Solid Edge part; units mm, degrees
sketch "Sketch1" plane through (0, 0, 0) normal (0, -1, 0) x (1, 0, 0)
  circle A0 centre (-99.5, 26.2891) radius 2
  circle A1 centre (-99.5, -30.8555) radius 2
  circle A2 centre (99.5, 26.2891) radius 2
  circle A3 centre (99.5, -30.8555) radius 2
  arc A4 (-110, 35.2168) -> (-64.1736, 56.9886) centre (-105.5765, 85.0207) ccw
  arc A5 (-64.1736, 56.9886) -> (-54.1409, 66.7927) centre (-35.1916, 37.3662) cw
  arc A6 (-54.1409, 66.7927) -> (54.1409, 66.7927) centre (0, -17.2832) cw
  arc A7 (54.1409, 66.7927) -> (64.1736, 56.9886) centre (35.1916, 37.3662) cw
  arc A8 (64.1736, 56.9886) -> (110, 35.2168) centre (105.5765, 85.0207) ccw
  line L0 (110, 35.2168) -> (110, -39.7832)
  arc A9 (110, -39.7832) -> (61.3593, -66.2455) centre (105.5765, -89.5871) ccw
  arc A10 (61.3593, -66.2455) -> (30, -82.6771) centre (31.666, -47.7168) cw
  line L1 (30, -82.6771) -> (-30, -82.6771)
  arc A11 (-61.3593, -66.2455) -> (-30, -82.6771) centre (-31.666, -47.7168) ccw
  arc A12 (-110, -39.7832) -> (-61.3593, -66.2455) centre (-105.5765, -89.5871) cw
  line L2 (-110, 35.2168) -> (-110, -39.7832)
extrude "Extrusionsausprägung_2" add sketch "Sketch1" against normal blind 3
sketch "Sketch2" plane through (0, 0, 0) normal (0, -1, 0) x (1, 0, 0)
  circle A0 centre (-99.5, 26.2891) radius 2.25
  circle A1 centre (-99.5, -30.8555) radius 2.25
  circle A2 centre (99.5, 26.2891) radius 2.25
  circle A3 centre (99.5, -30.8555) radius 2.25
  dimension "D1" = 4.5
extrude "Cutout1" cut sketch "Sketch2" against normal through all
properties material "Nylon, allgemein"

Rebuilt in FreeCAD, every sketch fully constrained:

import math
import FreeCAD as App
import Part
import Sketcher
from FreeCAD import Vector
Q = App.Units.Quantity

doc = App.newDocument("Part")
params = doc.addObject("Spreadsheet::Sheet", "Params")
for row, (alias, value) in enumerate([
    ("sketch1_diameter", "4 mm"),
    ("sketch1_radius", "50 mm"),
    ("sketch1_radius2", "35 mm"),
    ("sketch1_radius3", "100 mm"),
    ("sketch1_width", "60 mm"),
    ("pad1_length", "3 mm"),
    ("sketch2_diameter", "4.5 mm"),
], start=1):
    params.set(f"A{row}", alias)
    params.set(f"B{row}", "=" + value)
    params.setAlias(f"B{row}", alias)

body = doc.addObject("PartDesign::Body", "Body")

# Sketch on XZ plane
sketch1 = body.newObject("Sketcher::SketchObject", "Sketch")
sketch1.AttachmentSupport = (doc.getObject("XZ_Plane"), [""])
sketch1.MapMode = "FlatFace"
sketch1.addGeometry(Part.ArcOfCircle(Part.Circle(Vector(-105.6, 85, 0), Vector(0, 0, 1), 50), math.radians(-95), math.radians(-34)), False)
sketch1.addGeometry(Part.LineSegment(Vector(-110, 35.2, 0), Vector(-110, -39.8, 0)), False)
sketch1.addGeometry(Part.ArcOfCircle(Part.Circle(Vector(-105.6, -89.6, 0), Vector(0, 0, 1), 50), math.radians(28), math.radians(95)), False)
sketch1.addGeometry(Part.ArcOfCircle(Part.Circle(Vector(-31.7, -47.7, 0), Vector(0, 0, 1), 35), math.radians(-148), math.radians(-87)), False)
sketch1.addGeometry(Part.LineSegment(Vector(-30, -82.7, 0), Vector(30, -82.7, 0)), False)
sketch1.addGeometry(Part.ArcOfCircle(Part.Circle(Vector(31.7, -47.7, 0), Vector(0, 0, 1), 35), math.radians(-93), math.radians(-32)), False)
sketch1.addGeometry(Part.ArcOfCircle(Part.Circle(Vector(105.6, -89.6, 0), Vector(0, 0, 1), 50), math.radians(85), math.radians(152)), False)
sketch1.addGeometry(Part.LineSegment(Vector(110, -39.8, 0), Vector(110, 35.2, 0)), False)
sketch1.addGeometry(Part.ArcOfCircle(Part.Circle(Vector(105.6, 85, 0), Vector(0, 0, 1), 50), math.radians(-146), math.radians(-85)), False)
sketch1.addGeometry(Part.ArcOfCircle(Part.Circle(Vector(35.2, 37.4, 0), Vector(0, 0, 1), 35), math.radians(34), math.radians(57)), False)
sketch1.addGeometry(Part.ArcOfCircle(Part.Circle(Vector(0, -17.3, 0), Vector(0, 0, 1), 100), math.radians(57), math.radians(123)), False)
sketch1.addGeometry(Part.ArcOfCircle(Part.Circle(Vector(-35.2, 37.4, 0), Vector(0, 0, 1), 35), math.radians(123), math.radians(146)), False)
sketch1.addGeometry(Part.Circle(Vector(-99.5, -30.9, 0), Vector(0, 0, 1), 2), False)
sketch1.addGeometry(Part.Circle(Vector(99.5, -30.9, 0), Vector(0, 0, 1), 2), False)
sketch1.addGeometry(Part.Circle(Vector(-99.5, 26.3, 0), Vector(0, 0, 1), 2), False)
sketch1.addGeometry(Part.Circle(Vector(99.5, 26.3, 0), Vector(0, 0, 1), 2), False)
sketch1.addConstraint(Sketcher.Constraint("Coincident", 0, 1, 1, 1))
sketch1.addConstraint(Sketcher.Constraint("Coincident", 1, 2, 2, 2))
sketch1.addConstraint(Sketcher.Constraint("Coincident", 2, 1, 3, 1))
sketch1.addConstraint(Sketcher.Constraint("Coincident", 3, 2, 4, 1))
sketch1.addConstraint(Sketcher.Constraint("Coincident", 4, 2, 5, 1))
sketch1.addConstraint(Sketcher.Constraint("Coincident", 5, 2, 6, 2))
sketch1.addConstraint(Sketcher.Constraint("Coincident", 6, 1, 7, 1))
sketch1.addConstraint(Sketcher.Constraint("Coincident", 7, 2, 8, 2))
sketch1.addConstraint(Sketcher.Constraint("Tangent", 8, 1, 9, 1))
sketch1.addConstraint(Sketcher.Constraint("Tangent", 9, 2, 10, 1))
sketch1.addConstraint(Sketcher.Constraint("Tangent", 10, 2, 11, 1))
sketch1.addConstraint(Sketcher.Constraint("Tangent", 11, 2, 0, 2))
sketch1.addConstraint(Sketcher.Constraint("Vertical", 1))
sketch1.addConstraint(Sketcher.Constraint("Horizontal", 4))
sketch1.addConstraint(Sketcher.Constraint("Vertical", 7))
sketch1.addConstraint(Sketcher.Constraint("Equal", 0, 2))
sketch1.addConstraint(Sketcher.Constraint("Equal", 3, 5))
sketch1.addConstraint(Sketcher.Constraint("Equal", 2, 6))
sketch1.addConstraint(Sketcher.Constraint("Equal", 6, 8))
sketch1.addConstraint(Sketcher.Constraint("Equal", 5, 9))
sketch1.addConstraint(Sketcher.Constraint("Equal", 9, 11))
sketch1.addConstraint(Sketcher.Constraint("Equal", 12, 13))
sketch1.addConstraint(Sketcher.Constraint("Equal", 13, 14))
sketch1.addConstraint(Sketcher.Constraint("Equal", 14, 15))
sketch1.addConstraint(Sketcher.Constraint("Symmetric", 3, 3, 5, 3, -2))
sketch1.addConstraint(Sketcher.Constraint("Symmetric", 2, 3, 6, 3, -2))
sketch1.addConstraint(Sketcher.Constraint("Symmetric", 0, 3, 8, 3, -2))
sketch1.addConstraint(Sketcher.Constraint("Symmetric", 12, 3, 13, 3, -2))
sketch1.addConstraint(Sketcher.Constraint("Symmetric", 14, 3, 15, 3, -2))
sketch1.addConstraint(Sketcher.Constraint("PointOnObject", 10, 3, -2))
sketch1.addConstraint(Sketcher.Constraint("Horizontal", 1, 2, 6, 1))
sketch1.addConstraint(Sketcher.Constraint("Vertical", 0, 3, 2, 3))
sketch1.addConstraint(Sketcher.Constraint("Vertical", 12, 3, 14, 3))
sketch1.addConstraint(Sketcher.Constraint("Diameter", 12, Q("4 mm")))
sketch1.addConstraint(Sketcher.Constraint("Radius", 0, Q("50 mm")))
sketch1.addConstraint(Sketcher.Constraint("Radius", 3, Q("35 mm")))
sketch1.addConstraint(Sketcher.Constraint("Radius", 10, Q("100 mm")))
sketch1.addConstraint(Sketcher.Constraint("DistanceX", 4, 1, 4, 2, Q("60 mm")))
sketch1.addConstraint(Sketcher.Constraint("DistanceY", 1, 2, 1, 1, Q("75 mm")))
sketch1.addConstraint(Sketcher.Constraint("DistanceX", 0, 1, -1, 1, Q("110 mm")))
sketch1.addConstraint(Sketcher.Constraint("DistanceX", 12, 3, -1, 1, Q("99.5 mm")))
sketch1.addConstraint(Sketcher.Constraint("DistanceY", 2, 1, 12, 3, Q("35.39 mm")))
sketch1.addConstraint(Sketcher.Constraint("DistanceY", 2, 3, 3, 2, Q("6.91 mm")))
sketch1.addConstraint(Sketcher.Constraint("DistanceY", 2, 3, -1, 1, Q("89.587 mm")))
sketch1.addConstraint(Sketcher.Constraint("DistanceX", 3, 3, -1, 1, Q("31.666 mm")))
sketch1.addConstraint(Sketcher.Constraint("DistanceY", -1, 1, 14, 3, Q("26.289 mm")))
sketch1.addConstraint(Sketcher.Constraint("DistanceX", -1, 1, 9, 2, Q("54.141 mm")))
sketch1.addConstraint(Sketcher.Constraint("DistanceX", 2, 3, 6, 3, Q("211.153 mm")))
sketch1.setExpression("Constraints[33]", "Params.sketch1_diameter")
sketch1.setExpression("Constraints[34]", "Params.sketch1_radius")
sketch1.setExpression("Constraints[35]", "Params.sketch1_radius2")
sketch1.setExpression("Constraints[36]", "Params.sketch1_radius3")
sketch1.setExpression("Constraints[37]", "Params.sketch1_width")
pad1 = body.newObject("PartDesign::Pad", "Pad")
pad1.Profile = sketch1
pad1.setExpression("Length", "Params.pad1_length")
pad1.Reversed = True

# Sketch on XZ plane
sketch2 = body.newObject("Sketcher::SketchObject", "Sketch001")
sketch2.AttachmentSupport = (doc.getObject("XZ_Plane"), [""])
sketch2.MapMode = "FlatFace"
sketch2.addGeometry(Part.Circle(Vector(-99.5, 26.3, 0), Vector(0, 0, 1), 2.2), False)
sketch2.addGeometry(Part.Circle(Vector(-99.5, -30.9, 0), Vector(0, 0, 1), 2.2), False)
sketch2.addGeometry(Part.Circle(Vector(99.5, 26.3, 0), Vector(0, 0, 1), 2.2), False)
sketch2.addGeometry(Part.Circle(Vector(99.5, -30.9, 0), Vector(0, 0, 1), 2.2), False)
sketch2.addConstraint(Sketcher.Constraint("Equal", 0, 1))
sketch2.addConstraint(Sketcher.Constraint("Equal", 1, 2))
sketch2.addConstraint(Sketcher.Constraint("Equal", 2, 3))
sketch2.addConstraint(Sketcher.Constraint("Symmetric", 0, 3, 2, 3, -2))
sketch2.addConstraint(Sketcher.Constraint("Symmetric", 1, 3, 3, 3, -2))
sketch2.addConstraint(Sketcher.Constraint("Vertical", 0, 3, 1, 3))
sketch2.addConstraint(Sketcher.Constraint("Diameter", 0, Q("4.5 mm")))
sketch2.addConstraint(Sketcher.Constraint("DistanceX", 0, 3, 2, 3, Q("199 mm")))
sketch2.addConstraint(Sketcher.Constraint("DistanceY", -1, 1, 0, 3, Q("26.289 mm")))
sketch2.addConstraint(Sketcher.Constraint("DistanceY", 1, 3, -1, 1, Q("30.8555 mm")))
sketch2.setExpression("Constraints[6]", "Params.sketch2_diameter")
pocket1 = body.newObject("PartDesign::Pocket", "Pocket")
pocket1.Profile = sketch2
pocket1.Type = "ThroughAll"

doc.recompute()
